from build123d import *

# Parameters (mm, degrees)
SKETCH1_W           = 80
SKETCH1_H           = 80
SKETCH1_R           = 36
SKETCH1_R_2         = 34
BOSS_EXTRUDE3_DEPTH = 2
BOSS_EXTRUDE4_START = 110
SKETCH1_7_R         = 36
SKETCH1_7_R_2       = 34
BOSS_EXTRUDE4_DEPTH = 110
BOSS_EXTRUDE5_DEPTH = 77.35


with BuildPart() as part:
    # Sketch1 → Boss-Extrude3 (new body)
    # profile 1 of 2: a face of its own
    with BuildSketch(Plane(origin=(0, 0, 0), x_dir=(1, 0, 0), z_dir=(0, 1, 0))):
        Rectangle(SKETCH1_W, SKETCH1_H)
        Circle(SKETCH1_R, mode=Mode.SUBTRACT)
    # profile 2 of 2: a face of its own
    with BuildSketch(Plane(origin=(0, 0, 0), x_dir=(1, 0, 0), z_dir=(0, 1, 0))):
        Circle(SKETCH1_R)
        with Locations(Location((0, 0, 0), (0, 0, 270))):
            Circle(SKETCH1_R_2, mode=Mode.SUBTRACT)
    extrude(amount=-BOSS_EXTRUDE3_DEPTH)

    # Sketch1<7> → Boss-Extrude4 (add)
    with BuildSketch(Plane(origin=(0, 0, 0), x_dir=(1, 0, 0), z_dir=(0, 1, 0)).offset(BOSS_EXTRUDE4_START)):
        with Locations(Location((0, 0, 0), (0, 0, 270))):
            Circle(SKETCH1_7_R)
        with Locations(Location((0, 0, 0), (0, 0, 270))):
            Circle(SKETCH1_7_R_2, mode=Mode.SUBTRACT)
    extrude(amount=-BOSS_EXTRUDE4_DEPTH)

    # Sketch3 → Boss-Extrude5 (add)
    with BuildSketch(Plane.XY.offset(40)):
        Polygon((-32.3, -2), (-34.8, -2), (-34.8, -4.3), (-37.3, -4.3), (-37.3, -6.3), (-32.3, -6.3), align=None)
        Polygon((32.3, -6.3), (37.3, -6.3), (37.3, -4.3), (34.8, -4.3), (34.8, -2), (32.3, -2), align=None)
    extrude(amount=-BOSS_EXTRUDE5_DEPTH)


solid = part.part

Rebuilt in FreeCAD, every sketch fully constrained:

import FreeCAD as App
import Part
import Sketcher

doc = App.newDocument("Part")
body = doc.addObject("PartDesign::Body", "Body")

# Sketch on XZ plane
sketch1 = body.newObject("Sketcher::SketchObject", "Sketch")
sketch1.AttachmentSupport = (doc.getObject("XZ_Plane"), [""])
sketch1.MapMode = "FlatFace"
sketch1.addGeometry(Part.LineSegment(App.Vector(-40, -40, 0), App.Vector(-40, 40, 0)), False)
sketch1.addGeometry(Part.LineSegment(App.Vector(-40, 40, 0), App.Vector(40, 40, 0)), False)
sketch1.addGeometry(Part.LineSegment(App.Vector(40, 40, 0), App.Vector(40, -40, 0)), False)
sketch1.addGeometry(Part.LineSegment(App.Vector(40, -40, 0), App.Vector(-40, -40, 0)), False)
sketch1.addGeometry(Part.Circle(App.Vector(0, 0, 0), App.Vector(0, 0, 1), 34), False)
sketch1.addConstraint(Sketcher.Constraint("Coincident", 0, 2, 1, 1))
sketch1.addConstraint(Sketcher.Constraint("Coincident", 1, 2, 2, 1))
sketch1.addConstraint(Sketcher.Constraint("Coincident", 2, 2, 3, 1))
sketch1.addConstraint(Sketcher.Constraint("Coincident", 3, 2, 0, 1))
sketch1.addConstraint(Sketcher.Constraint("Vertical", 0))
sketch1.addConstraint(Sketcher.Constraint("Horizontal", 1))
sketch1.addConstraint(Sketcher.Constraint("Vertical", 2))
sketch1.addConstraint(Sketcher.Constraint("Horizontal", 3))
sketch1.addConstraint(Sketcher.Constraint("Coincident", 4, 3, -1, 1))
sketch1.addConstraint(Sketcher.Constraint("Symmetric", 0, 2, 2, 2, -1, 1))
sketch1.addConstraint(Sketcher.Constraint("Equal", 3, 0))
sketch1.addConstraint(Sketcher.Constraint("Diameter", 4, 68.0))
sketch1.addConstraint(Sketcher.Constraint("DistanceX", 1, 1, 1, 2, 80.0))
pad1 = body.newObject("PartDesign::Pad", "Pad")
pad1.Profile = sketch1
pad1.Length = 2

# Sketch on XZ plane
sketch2 = body.newObject("Sketcher::SketchObject", "Sketch001")
sketch2.AttachmentSupport = (doc.getObject("XZ_Plane"), [""])
sketch2.MapMode = "FlatFace"
sketch2.AttachmentOffset = App.Placement(App.Vector(0, 0, -110), App.Rotation())
sketch2.addGeometry(Part.Circle(App.Vector(0, 0, 0), App.Vector(0, 0, 1), 36), False)
sketch2.addGeometry(Part.Circle(App.Vector(0, 0, 0), App.Vector(0, 0, 1), 34), False)
sketch2.addConstraint(Sketcher.Constraint("Coincident", 0, 3, -1, 1))
sketch2.addConstraint(Sketcher.Constraint("Coincident", 1, 3, -1, 1))
sketch2.addConstraint(Sketcher.Constraint("Diameter", 0, 72.0))
sketch2.addConstraint(Sketcher.Constraint("Diameter", 1, 68.0))
pad2 = body.newObject("PartDesign::Pad", "Pad001")
pad2.Profile = sketch2
pad2.Length = 110

# Sketch on XY plane
sketch3 = body.newObject("Sketcher::SketchObject", "Sketch002")
sketch3.AttachmentSupport = (doc.getObject("XY_Plane"), [""])
sketch3.MapMode = "FlatFace"
sketch3.AttachmentOffset = App.Placement(App.Vector(0, 0, 40), App.Rotation())
sketch3.addGeometry(Part.LineSegment(App.Vector(-32.3, -2, 0), App.Vector(-34.8, -2, 0)), False)
sketch3.addGeometry(Part.LineSegment(App.Vector(-34.8, -2, 0), App.Vector(-34.8, -4.3, 0)), False)
sketch3.addGeometry(Part.LineSegment(App.Vector(-34.8, -4.3, 0), App.Vector(-37.3, -4.3, 0)), False)
sketch3.addGeometry(Part.LineSegment(App.Vector(-37.3, -4.3, 0), App.Vector(-37.3, -6.3, 0)), False)
sketch3.addGeometry(Part.LineSegment(App.Vector(-37.3, -6.3, 0), App.Vector(-32.3, -6.3, 0)), False)
sketch3.addGeometry(Part.LineSegment(App.Vector(-32.3, -6.3, 0), App.Vector(-32.3, -2, 0)), False)
sketch3.addGeometry(Part.LineSegment(App.Vector(32.3, -6.3, 0), App.Vector(37.3, -6.3, 0)), False)
sketch3.addGeometry(Part.LineSegment(App.Vector(37.3, -6.3, 0), App.Vector(37.3, -4.3, 0)), False)
sketch3.addGeometry(Part.LineSegment(App.Vector(37.3, -4.3, 0), App.Vector(34.8, -4.3, 0)), False)
sketch3.addGeometry(Part.LineSegment(App.Vector(34.8, -4.3, 0), App.Vector(34.8, -2, 0)), False)
sketch3.addGeometry(Part.LineSegment(App.Vector(34.8, -2, 0), App.Vector(32.3, -2, 0)), False)
sketch3.addGeometry(Part.LineSegment(App.Vector(32.3, -2, 0), App.Vector(32.3, -6.3, 0)), False)
sketch3.addConstraint(Sketcher.Constraint("Coincident", 0, 2, 1, 1))
sketch3.addConstraint(Sketcher.Constraint("Coincident", 1, 2, 2, 1))
sketch3.addConstraint(Sketcher.Constraint("Coincident", 2, 2, 3, 1))
sketch3.addConstraint(Sketcher.Constraint("Coincident", 3, 2, 4, 1))
sketch3.addConstraint(Sketcher.Constraint("Coincident", 4, 2, 5, 1))
sketch3.addConstraint(Sketcher.Constraint("Coincident", 5, 2, 0, 1))
sketch3.addConstraint(Sketcher.Constraint("Coincident", 6, 2, 7, 1))
sketch3.addConstraint(Sketcher.Constraint("Coincident", 7, 2, 8, 1))
sketch3.addConstraint(Sketcher.Constraint("Coincident", 8, 2, 9, 1))
sketch3.addConstraint(Sketcher.Constraint("Coincident", 9, 2, 10, 1))
sketch3.addConstraint(Sketcher.Constraint("Coincident", 10, 2, 11, 1))
sketch3.addConstraint(Sketcher.Constraint("Coincident", 11, 2, 6, 1))
sketch3.addConstraint(Sketcher.Constraint("Horizontal", 0))
sketch3.addConstraint(Sketcher.Constraint("Vertical", 1))
sketch3.addConstraint(Sketcher.Constraint("Horizontal", 2))
sketch3.addConstraint(Sketcher.Constraint("Vertical", 3))
sketch3.addConstraint(Sketcher.Constraint("Horizontal", 4))
sketch3.addConstraint(Sketcher.Constraint("Vertical", 5))
sketch3.addConstraint(Sketcher.Constraint("Horizontal", 6))
sketch3.addConstraint(Sketcher.Constraint("Vertical", 7))
sketch3.addConstraint(Sketcher.Constraint("Horizontal", 8))
sketch3.addConstraint(Sketcher.Constraint("Vertical", 9))
sketch3.addConstraint(Sketcher.Constraint("Horizontal", 10))
sketch3.addConstraint(Sketcher.Constraint("Vertical", 11))
sketch3.addConstraint(Sketcher.Constraint("Symmetric", 3, 2, 6, 2, -2))
sketch3.addConstraint(Sketcher.Constraint("Symmetric", 1, 2, 8, 2, -2))
sketch3.addConstraint(Sketcher.Constraint("Symmetric", 5, 2, 10, 2, -2))
sketch3.addConstraint(Sketcher.Constraint("Equal", 0, 2))
sketch3.addConstraint(Sketcher.Constraint("DistanceX", 4, 1, 4, 2, 5.0))
sketch3.addConstraint(Sketcher.Constraint("DistanceY", 3, 2, 3, 1, 2.0))
sketch3.addConstraint(Sketcher.Constraint("DistanceY", 1, 2, 1, 1, 2.3))
sketch3.addConstraint(Sketcher.Constraint("DistanceY", 0, 2, -1, 1, 2.0))
sketch3.addConstraint(Sketcher.Constraint("DistanceX", 0, 2, -1, 1, 34.8))
pad3 = body.newObject("PartDesign::Pad", "Pad002")
pad3.Profile = sketch3
pad3.Length = 77.35
pad3.Reversed = True

doc.recompute()
